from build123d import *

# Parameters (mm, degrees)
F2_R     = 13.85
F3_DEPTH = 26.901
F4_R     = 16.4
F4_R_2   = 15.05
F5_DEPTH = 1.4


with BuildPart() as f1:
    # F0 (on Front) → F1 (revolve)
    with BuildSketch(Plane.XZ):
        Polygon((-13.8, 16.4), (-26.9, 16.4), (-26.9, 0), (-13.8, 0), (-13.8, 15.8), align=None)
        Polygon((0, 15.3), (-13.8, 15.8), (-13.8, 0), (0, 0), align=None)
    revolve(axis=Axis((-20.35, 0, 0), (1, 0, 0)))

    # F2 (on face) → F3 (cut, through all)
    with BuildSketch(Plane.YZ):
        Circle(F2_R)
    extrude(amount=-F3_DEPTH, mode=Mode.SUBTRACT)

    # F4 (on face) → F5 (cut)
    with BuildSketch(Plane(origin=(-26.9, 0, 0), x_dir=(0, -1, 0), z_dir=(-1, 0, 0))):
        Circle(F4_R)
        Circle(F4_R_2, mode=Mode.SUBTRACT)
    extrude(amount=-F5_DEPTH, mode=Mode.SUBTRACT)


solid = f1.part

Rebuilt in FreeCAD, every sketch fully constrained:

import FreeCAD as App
import Part
import Sketcher

V = App.Vector

doc = App.newDocument("Part")
body = doc.addObject("PartDesign::Body", "Body")

sketch1 = body.newObject("Sketcher::SketchObject", "Sketch")
sketch1.AttachmentSupport = (doc.getObject("XZ_Plane"), [""])
sketch1.MapMode = "FlatFace"
sketch1.addGeometry([
    Part.LineSegment(V(-13.8, 16.4, 0), V(-26.9, 16.4, 0)),
    Part.LineSegment(V(-26.9, 16.4, 0), V(-26.9, 0, 0)),
    Part.LineSegment(V(-26.9, 0, 0), V(0, 0, 0)),
    Part.LineSegment(V(0, 0, 0), V(0, 15.3, 0)),
    Part.LineSegment(V(0, 15.3, 0), V(-13.8, 15.8, 0)),
    Part.LineSegment(V(-13.8, 15.8, 0), V(-13.8, 16.4, 0)),
], False)
sketch1.addConstraint([
    Sketcher.Constraint("Coincident", 0, 2, 1, 1),
    Sketcher.Constraint("Coincident", 1, 2, 2, 1),
    Sketcher.Constraint("Coincident", 2, 2, 3, 1),
    Sketcher.Constraint("Coincident", 3, 2, 4, 1),
    Sketcher.Constraint("Coincident", 4, 2, 5, 1),
    Sketcher.Constraint("Coincident", 5, 2, 0, 1),
    Sketcher.Constraint("Horizontal", 0),
    Sketcher.Constraint("Vertical", 1),
    Sketcher.Constraint("Horizontal", 2),
    Sketcher.Constraint("Vertical", 3),
    Sketcher.Constraint("Vertical", 5),
    Sketcher.Constraint("Coincident", 2, 2, -1, 1),
    Sketcher.Constraint("DistanceX", 0, 2, 0, 1, 13.1),
    Sketcher.Constraint("DistanceX", 2, 1, 2, 2, 26.9),
    Sketcher.Constraint("DistanceY", 1, 2, 1, 1, 16.4),
    Sketcher.Constraint("DistanceY", 3, 1, 3, 2, 15.3),
    Sketcher.Constraint("DistanceY", 5, 1, 5, 2, 0.6),
])
revolution = body.newObject("PartDesign::Revolution", "Revolution")
revolution.Profile = sketch1
revolution.ReferenceAxis = (sketch1, ["H_Axis"])
revolution.Angle = 360

sketch2 = body.newObject("Sketcher::SketchObject", "Sketch001")
sketch2.AttachmentSupport = (doc.getObject("YZ_Plane"), [""])
sketch2.MapMode = "FlatFace"
sketch2.addGeometry(Part.Circle(V(0, 0, 0), V(0, 0, 1), 14), False)
sketch2.addConstraint([
    Sketcher.Constraint("Coincident", 0, 3, -1, 1),
    Sketcher.Constraint("Diameter", 0, 27.7),
])
pocket1 = body.newObject("PartDesign::Pocket", "Pocket")
pocket1.Profile = sketch2
pocket1.Type = "ThroughAll"

sketch3 = body.newObject("Sketcher::SketchObject", "Sketch002")
sketch3.AttachmentSupport = (doc.getObject("YZ_Plane"), [""])
sketch3.MapMode = "FlatFace"
sketch3.AttachmentOffset = App.Placement(V(0, 0, -26.9), App.Rotation())
sketch3.addGeometry([
    Part.Circle(V(0, 0, 0), V(0, 0, 1), 16),
    Part.Circle(V(0, 0, 0), V(0, 0, 1), 15),
], False)
sketch3.addConstraint([
    Sketcher.Constraint("Coincident", 0, 3, -1, 1),
    Sketcher.Constraint("Coincident", 1, 3, -1, 1),
    Sketcher.Constraint("Diameter", 0, 32.8),
    Sketcher.Constraint("Diameter", 1, 30.1),
])
pocket2 = body.newObject("PartDesign::Pocket", "Pocket001")
pocket2.Profile = sketch3
pocket2.Length = 1.4
pocket2.Reversed = True

doc.recompute()
